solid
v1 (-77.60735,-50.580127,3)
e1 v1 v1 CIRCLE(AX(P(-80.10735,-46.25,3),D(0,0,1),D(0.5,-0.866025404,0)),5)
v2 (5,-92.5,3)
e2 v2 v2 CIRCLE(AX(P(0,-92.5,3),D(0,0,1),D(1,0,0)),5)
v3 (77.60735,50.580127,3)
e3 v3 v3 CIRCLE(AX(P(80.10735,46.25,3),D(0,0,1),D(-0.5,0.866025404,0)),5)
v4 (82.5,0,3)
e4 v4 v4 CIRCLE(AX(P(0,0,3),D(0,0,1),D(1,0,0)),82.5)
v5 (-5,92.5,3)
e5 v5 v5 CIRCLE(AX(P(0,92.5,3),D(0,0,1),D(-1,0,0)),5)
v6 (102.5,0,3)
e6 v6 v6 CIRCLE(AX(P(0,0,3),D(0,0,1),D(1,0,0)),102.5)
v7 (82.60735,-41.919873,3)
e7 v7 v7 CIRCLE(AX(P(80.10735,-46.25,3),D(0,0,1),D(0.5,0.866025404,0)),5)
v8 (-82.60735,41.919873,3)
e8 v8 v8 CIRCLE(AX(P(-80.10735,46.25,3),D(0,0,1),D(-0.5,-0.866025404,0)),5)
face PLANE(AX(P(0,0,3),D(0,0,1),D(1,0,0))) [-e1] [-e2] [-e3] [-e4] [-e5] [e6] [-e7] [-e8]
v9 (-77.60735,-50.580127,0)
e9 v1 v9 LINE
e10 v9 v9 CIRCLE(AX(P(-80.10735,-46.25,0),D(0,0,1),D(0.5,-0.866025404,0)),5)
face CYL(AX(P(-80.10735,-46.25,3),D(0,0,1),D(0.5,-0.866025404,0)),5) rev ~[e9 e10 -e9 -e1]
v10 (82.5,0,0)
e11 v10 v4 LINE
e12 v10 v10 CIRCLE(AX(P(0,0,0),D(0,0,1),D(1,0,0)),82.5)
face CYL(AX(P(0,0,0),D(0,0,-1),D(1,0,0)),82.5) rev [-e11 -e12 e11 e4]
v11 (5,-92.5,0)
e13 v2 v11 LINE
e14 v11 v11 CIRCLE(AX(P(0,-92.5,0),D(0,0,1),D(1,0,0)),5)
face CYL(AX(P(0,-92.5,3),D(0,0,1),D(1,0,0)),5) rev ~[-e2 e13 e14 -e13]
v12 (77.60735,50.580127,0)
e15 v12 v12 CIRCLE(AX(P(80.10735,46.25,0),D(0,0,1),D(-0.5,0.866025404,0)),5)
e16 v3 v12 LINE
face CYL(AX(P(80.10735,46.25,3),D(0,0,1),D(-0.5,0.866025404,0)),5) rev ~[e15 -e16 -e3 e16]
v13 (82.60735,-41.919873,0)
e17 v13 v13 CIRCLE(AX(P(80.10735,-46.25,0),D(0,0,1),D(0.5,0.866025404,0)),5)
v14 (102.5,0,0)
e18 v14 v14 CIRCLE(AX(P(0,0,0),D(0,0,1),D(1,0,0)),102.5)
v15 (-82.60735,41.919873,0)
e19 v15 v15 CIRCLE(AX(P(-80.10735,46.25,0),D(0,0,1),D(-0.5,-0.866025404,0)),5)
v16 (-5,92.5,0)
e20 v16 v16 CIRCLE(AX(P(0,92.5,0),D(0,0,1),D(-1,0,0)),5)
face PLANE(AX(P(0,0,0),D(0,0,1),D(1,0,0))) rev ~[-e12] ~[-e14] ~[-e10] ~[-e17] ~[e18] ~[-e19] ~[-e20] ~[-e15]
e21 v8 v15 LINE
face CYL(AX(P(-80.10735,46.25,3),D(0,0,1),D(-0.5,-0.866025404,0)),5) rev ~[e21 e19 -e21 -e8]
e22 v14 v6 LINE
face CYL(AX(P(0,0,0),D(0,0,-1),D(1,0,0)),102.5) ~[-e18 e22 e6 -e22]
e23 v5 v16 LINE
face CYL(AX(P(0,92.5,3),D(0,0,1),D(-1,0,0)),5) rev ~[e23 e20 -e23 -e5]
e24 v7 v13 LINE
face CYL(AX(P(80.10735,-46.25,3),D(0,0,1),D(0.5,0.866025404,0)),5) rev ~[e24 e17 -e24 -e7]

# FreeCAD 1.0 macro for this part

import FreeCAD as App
import Part
import Sketcher

V = App.Vector
Q = App.Units.Quantity

doc = App.newDocument("Part")
body = doc.addObject("PartDesign::Body", "Body")

sketch1 = body.newObject("Sketcher::SketchObject", "Sketch")
sketch1.AttachmentSupport = (doc.getObject("XY_Plane"), [""])
sketch1.MapMode = "FlatFace"
sketch1.addGeometry(Part.Circle(V(0, 0, 0), V(0, 0, 1), 102), False)
sketch1.addGeometry(Part.Circle(V(0, 0, 0), V(0, 0, 1), 82), False)
sketch1.addConstraint(Sketcher.Constraint("Coincident", 0, 3, -1, 1))
sketch1.addConstraint(Sketcher.Constraint("Coincident", 1, 3, -1, 1))
sketch1.addConstraint(Sketcher.Constraint("Diameter", 0, Q("205 mm")))
sketch1.addConstraint(Sketcher.Constraint("Diameter", 1, Q("165 mm")))
pad1 = body.newObject("PartDesign::Pad", "Pad")
pad1.Profile = sketch1
pad1.Length = 3

sketch2 = body.newObject("Sketcher::SketchObject", "Sketch001")
sketch2.AttachmentSupport = (doc.getObject("XY_Plane"), [""])
sketch2.MapMode = "FlatFace"
sketch2.AttachmentOffset = App.Placement(V(0, 0, 3), App.Rotation())
sketch2.addGeometry(Part.Circle(V(0, -92, 0), V(0, 0, 1), 5), False)
sketch2.addConstraint(Sketcher.Constraint("PointOnObject", 0, 3, -2))
sketch2.addConstraint(Sketcher.Constraint("Diameter", 0, Q("10 mm")))
sketch2.addConstraint(Sketcher.Constraint("DistanceY", 0, 3, -1, 1, Q("92.5 mm")))
pocket1 = body.newObject("PartDesign::Pocket", "Pocket")
pocket1.Profile = sketch2
pocket1.Type = "ThroughAll"
doc.recompute()

polarpattern = body.newObject("PartDesign::PolarPattern", "PolarPattern")
polarpattern.Originals = [pocket1]
polarpattern.Axis = (doc.getObject("Z_Axis"), [""])
polarpattern.Angle = 360
polarpattern.Occurrences = 6
body.Tip = polarpattern

doc.recompute()
